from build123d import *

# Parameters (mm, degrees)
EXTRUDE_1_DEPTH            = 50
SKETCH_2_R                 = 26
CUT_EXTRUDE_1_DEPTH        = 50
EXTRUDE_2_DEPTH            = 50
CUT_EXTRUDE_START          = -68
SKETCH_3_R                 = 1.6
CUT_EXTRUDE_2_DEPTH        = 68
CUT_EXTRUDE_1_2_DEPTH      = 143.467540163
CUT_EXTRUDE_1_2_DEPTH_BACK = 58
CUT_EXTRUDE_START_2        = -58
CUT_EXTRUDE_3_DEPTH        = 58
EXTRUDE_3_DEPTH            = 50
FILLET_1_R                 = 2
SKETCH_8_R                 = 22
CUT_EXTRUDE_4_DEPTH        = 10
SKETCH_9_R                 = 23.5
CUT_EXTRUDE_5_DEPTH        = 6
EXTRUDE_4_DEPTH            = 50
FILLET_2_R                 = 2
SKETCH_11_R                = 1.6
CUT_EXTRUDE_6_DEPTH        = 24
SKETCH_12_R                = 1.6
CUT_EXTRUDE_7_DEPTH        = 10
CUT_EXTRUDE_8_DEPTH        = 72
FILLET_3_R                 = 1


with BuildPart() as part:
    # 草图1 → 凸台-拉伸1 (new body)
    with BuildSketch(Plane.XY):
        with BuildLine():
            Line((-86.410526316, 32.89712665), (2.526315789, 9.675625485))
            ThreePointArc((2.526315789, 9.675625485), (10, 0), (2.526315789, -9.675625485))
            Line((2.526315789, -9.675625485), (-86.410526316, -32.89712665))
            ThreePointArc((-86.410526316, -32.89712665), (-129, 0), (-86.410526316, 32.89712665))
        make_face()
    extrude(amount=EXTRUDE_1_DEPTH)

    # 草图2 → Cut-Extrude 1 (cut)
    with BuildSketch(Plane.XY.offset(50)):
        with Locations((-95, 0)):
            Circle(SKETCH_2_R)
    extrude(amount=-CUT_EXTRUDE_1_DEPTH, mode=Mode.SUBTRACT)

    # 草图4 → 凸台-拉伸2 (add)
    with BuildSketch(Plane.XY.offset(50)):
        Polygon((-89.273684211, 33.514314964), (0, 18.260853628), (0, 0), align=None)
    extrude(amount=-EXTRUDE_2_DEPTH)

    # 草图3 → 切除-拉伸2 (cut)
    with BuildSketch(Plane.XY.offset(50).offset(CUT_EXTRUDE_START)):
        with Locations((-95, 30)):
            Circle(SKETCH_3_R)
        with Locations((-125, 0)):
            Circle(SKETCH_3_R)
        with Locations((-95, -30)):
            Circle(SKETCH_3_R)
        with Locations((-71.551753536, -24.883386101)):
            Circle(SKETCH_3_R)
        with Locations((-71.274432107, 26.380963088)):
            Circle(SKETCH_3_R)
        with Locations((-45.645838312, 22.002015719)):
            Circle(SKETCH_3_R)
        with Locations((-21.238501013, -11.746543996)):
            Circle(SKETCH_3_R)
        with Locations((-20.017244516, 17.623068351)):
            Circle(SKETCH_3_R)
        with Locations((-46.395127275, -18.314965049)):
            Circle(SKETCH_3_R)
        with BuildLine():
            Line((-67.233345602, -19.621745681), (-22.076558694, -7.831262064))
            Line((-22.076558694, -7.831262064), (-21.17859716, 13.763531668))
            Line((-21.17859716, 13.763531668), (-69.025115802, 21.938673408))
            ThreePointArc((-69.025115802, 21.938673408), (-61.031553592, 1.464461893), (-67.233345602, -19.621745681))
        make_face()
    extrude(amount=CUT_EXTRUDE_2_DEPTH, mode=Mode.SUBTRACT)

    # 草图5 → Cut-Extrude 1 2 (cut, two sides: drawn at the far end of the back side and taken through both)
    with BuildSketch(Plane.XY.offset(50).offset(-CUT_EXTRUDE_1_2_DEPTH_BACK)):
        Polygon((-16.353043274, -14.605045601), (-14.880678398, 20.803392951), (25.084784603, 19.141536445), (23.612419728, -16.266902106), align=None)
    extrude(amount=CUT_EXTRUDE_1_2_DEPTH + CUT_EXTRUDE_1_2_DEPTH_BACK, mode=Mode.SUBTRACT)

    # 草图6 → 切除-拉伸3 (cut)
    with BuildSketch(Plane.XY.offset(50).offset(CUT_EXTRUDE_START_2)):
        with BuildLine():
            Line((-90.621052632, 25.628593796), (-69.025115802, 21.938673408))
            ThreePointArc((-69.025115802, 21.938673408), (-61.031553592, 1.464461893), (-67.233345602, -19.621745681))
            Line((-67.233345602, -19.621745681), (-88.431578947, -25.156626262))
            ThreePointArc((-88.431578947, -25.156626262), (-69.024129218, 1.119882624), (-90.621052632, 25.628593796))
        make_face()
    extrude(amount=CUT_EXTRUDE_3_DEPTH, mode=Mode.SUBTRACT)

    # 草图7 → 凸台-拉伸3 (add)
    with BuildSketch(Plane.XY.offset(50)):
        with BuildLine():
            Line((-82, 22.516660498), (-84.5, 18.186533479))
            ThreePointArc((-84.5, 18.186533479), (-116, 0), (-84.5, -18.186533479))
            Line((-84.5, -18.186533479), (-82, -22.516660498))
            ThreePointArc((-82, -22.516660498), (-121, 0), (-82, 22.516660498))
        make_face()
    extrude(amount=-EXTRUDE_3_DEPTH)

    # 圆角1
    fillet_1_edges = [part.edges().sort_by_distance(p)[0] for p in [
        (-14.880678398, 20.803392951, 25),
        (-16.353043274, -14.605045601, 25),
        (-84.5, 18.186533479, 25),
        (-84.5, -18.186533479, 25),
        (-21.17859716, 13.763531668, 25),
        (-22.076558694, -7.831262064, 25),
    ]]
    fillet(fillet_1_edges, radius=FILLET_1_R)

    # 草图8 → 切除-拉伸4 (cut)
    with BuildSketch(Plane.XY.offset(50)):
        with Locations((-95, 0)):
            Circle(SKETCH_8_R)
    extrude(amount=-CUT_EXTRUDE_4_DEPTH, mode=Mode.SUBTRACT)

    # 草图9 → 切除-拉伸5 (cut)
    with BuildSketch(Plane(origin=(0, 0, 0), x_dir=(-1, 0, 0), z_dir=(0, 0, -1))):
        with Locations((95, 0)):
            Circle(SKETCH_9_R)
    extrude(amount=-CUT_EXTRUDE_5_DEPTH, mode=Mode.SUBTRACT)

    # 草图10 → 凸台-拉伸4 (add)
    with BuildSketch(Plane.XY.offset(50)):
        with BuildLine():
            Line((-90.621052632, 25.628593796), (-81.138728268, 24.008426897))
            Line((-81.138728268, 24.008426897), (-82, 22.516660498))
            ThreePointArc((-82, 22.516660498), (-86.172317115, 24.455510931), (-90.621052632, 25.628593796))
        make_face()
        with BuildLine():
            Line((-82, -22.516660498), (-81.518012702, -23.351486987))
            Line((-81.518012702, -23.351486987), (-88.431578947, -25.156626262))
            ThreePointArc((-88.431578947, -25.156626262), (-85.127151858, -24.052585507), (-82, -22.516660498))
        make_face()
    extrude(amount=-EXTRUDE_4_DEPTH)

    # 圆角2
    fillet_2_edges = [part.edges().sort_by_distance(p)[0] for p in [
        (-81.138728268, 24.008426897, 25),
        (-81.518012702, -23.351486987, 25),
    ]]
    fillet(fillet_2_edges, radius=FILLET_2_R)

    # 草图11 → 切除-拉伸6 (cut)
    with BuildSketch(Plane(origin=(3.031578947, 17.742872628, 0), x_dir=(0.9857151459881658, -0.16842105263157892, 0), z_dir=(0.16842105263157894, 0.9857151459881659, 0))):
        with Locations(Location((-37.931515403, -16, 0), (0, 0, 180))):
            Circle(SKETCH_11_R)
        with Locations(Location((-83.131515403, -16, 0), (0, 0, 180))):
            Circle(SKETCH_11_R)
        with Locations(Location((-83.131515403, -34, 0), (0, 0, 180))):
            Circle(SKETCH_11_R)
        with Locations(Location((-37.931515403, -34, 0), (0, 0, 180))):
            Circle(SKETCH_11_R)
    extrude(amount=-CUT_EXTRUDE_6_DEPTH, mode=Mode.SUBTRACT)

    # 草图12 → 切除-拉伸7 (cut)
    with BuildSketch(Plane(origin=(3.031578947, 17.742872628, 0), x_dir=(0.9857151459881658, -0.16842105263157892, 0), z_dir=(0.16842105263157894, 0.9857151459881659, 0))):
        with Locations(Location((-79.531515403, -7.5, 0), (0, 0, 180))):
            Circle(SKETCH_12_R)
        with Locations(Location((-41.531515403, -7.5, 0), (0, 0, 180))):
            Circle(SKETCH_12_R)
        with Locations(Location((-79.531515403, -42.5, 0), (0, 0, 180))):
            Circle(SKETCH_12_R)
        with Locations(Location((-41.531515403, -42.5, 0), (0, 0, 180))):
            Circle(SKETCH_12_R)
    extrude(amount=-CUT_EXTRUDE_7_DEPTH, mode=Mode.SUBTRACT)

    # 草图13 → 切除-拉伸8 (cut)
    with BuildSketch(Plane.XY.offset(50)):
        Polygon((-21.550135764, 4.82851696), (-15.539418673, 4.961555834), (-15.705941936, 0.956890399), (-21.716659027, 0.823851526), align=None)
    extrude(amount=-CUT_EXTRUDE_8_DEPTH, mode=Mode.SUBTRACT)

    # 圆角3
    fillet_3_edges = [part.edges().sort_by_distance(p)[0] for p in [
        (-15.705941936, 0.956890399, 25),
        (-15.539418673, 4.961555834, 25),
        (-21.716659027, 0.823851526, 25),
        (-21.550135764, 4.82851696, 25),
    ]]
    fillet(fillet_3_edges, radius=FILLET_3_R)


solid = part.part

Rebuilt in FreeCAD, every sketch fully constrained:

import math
import FreeCAD as App
import Part
import Sketcher

V = App.Vector
Q = App.Units.Quantity


def edges_at(feature, points):
    """Names of the edges that pass closest to the given points."""
    edges = feature.Shape.Edges
    near = lambda p: min(range(len(edges)), key=lambda i: edges[i].distToShape(Part.Vertex(*p))[0])
    return sorted({f"Edge{near(p) + 1}" for p in points})


def add_polygon(sketch, points):
    """Adds a closed chain of lines whose ends are joined by coincident constraints."""
    first, n = sketch.GeometryCount, len(points)
    for a, b in zip(points, points[1:] + points[:1]):
        sketch.addGeometry(Part.LineSegment(App.Vector(*a, 0), App.Vector(*b, 0)), False)
    for i in range(n):
        sketch.addConstraint(Sketcher.Constraint("Coincident", first + i, 2, first + (i + 1) % n, 1))

doc = App.newDocument("Part")
body = doc.addObject("PartDesign::Body", "Body")

sketch1 = body.newObject("Sketcher::SketchObject", "Sketch")
sketch1.AttachmentSupport = (doc.getObject("XY_Plane"), [""])
sketch1.MapMode = "FlatFace"
sketch1.addGeometry([
    Part.LineSegment(V(3, 10, 0), V(-86, 33, 0)),
    Part.ArcOfCircle(Part.Circle(V(-95, 0, 0), V(0, 0, 1), 34), math.radians(75), math.radians(285)),
    Part.LineSegment(V(-86, -33, 0), V(3, -10, 0)),
    Part.ArcOfCircle(Part.Circle(V(0, 0, 0), V(0, 0, 1), 10), math.radians(-75), math.radians(75)),
], False)
sketch1.addConstraint([
    Sketcher.Constraint("Tangent", 0, 2, 1, 1),
    Sketcher.Constraint("Tangent", 1, 2, 2, 1),
    Sketcher.Constraint("Tangent", 2, 2, 3, 1),
    Sketcher.Constraint("Tangent", 3, 2, 0, 1),
    Sketcher.Constraint("Coincident", 3, 3, -1, 1),
    Sketcher.Constraint("PointOnObject", 1, 3, -1),
    Sketcher.Constraint("Radius", 1, 34.0),
    Sketcher.Constraint("Radius", 3, 10.0),
    Sketcher.Constraint("DistanceX", 1, 3, -1, 1, 95.0),
])
pad1 = body.newObject("PartDesign::Pad", "Pad")
pad1.Profile = sketch1
pad1.Length = 50

sketch2 = body.newObject("Sketcher::SketchObject", "Sketch001")
sketch2.AttachmentSupport = (doc.getObject("XY_Plane"), [""])
sketch2.MapMode = "FlatFace"
sketch2.AttachmentOffset = App.Placement(V(0, 0, 50), App.Rotation())
sketch2.addGeometry(Part.Circle(V(-95, 0, 0), V(0, 0, 1), 26), False)
sketch2.addConstraint([
    Sketcher.Constraint("PointOnObject", 0, 3, -1),
    Sketcher.Constraint("Diameter", 0, 52.0),
    Sketcher.Constraint("DistanceX", 0, 3, -1, 1, 95.0),
])
pocket1 = body.newObject("PartDesign::Pocket", "Pocket")
pocket1.Profile = sketch2
pocket1.Length = 50

sketch3 = body.newObject("Sketcher::SketchObject", "Sketch002")
sketch3.AttachmentSupport = (doc.getObject("XY_Plane"), [""])
sketch3.MapMode = "FlatFace"
sketch3.AttachmentOffset = App.Placement(V(0, 0, 50), App.Rotation())
add_polygon(sketch3, [(0, 18), (-89, 34), (0, 0)])
sketch3.addConstraint([
    Sketcher.Constraint("Vertical", 2),
    Sketcher.Constraint("Coincident", 1, 2, -1, 1),
    Sketcher.Constraint("DistanceY", 2, 1, 2, 2, 18.260854),
    Sketcher.Constraint("DistanceY", 2, 2, 0, 2, 15.253461),
    Sketcher.Constraint("Distance", 0, 90.567427),
])
pad2 = body.newObject("PartDesign::Pad", "Pad001")
pad2.Profile = sketch3
pad2.Length = 50
pad2.Reversed = True

sketch4 = body.newObject("Sketcher::SketchObject", "Sketch003")
sketch4.AttachmentSupport = (doc.getObject("XY_Plane"), [""])
sketch4.MapMode = "FlatFace"
sketch4.AttachmentOffset = App.Placement(V(0, 0, -18), App.Rotation())
sketch4.addGeometry([
    Part.Circle(V(-95, 30, 0), V(0, 0, 1), 1.6),
    Part.Circle(V(-125, 0, 0), V(0, 0, 1), 1.6),
    Part.Circle(V(-95, -30, 0), V(0, 0, 1), 1.6),
    Part.Circle(V(-71.6, -24.9, 0), V(0, 0, 1), 1.6),
    Part.Circle(V(-71.3, 26.4, 0), V(0, 0, 1), 1.6),
    Part.Circle(V(-45.6, 22, 0), V(0, 0, 1), 1.6),
    Part.Circle(V(-21.2, -11.7, 0), V(0, 0, 1), 1.6),
    Part.Circle(V(-20, 17.6, 0), V(0, 0, 1), 1.6),
    Part.Circle(V(-46.4, -18.3, 0), V(0, 0, 1), 1.6),
    Part.LineSegment(V(-67.2, -19.6, 0), V(-22.1, -7.8, 0)),
    Part.LineSegment(V(-22.1, -7.8, 0), V(-21.2, 13.8, 0)),
    Part.LineSegment(V(-21.2, 13.8, 0), V(-69, 21.9, 0)),
    Part.ArcOfCircle(Part.Circle(V(-95, 0, 0), V(0, 0, 1), 34), math.radians(-35), math.radians(40)),
], False)
sketch4.addConstraint([
    Sketcher.Constraint("Coincident", 9, 2, 10, 1),
    Sketcher.Constraint("Coincident", 10, 2, 11, 1),
    Sketcher.Constraint("Coincident", 11, 2, 12, 2),
    Sketcher.Constraint("Coincident", 12, 1, 9, 1),
    Sketcher.Constraint("Equal", 0, 1),
    Sketcher.Constraint("Equal", 1, 2),
    Sketcher.Constraint("Equal", 2, 3),
    Sketcher.Constraint("Equal", 3, 4),
    Sketcher.Constraint("Equal", 4, 5),
    Sketcher.Constraint("Equal", 5, 6),
    Sketcher.Constraint("Equal", 6, 7),
    Sketcher.Constraint("Equal", 7, 8),
    Sketcher.Constraint("Symmetric", 0, 3, 2, 3, -1),
    Sketcher.Constraint("PointOnObject", 1, 3, -1),
    Sketcher.Constraint("PointOnObject", 12, 3, -1),
    Sketcher.Constraint("Vertical", 2, 3, 12, 3),
    Sketcher.Constraint("Radius", 12, 34.0),
    Sketcher.Constraint("Diameter", 0, 3.2),
    Sketcher.Constraint("DistanceX", 0, 3, -1, 1, 95.0),
    Sketcher.Constraint("DistanceY", -1, 1, 0, 3, 30.0),
    Sketcher.Constraint("DistanceX", 1, 3, -1, 1, 125.0),
    Sketcher.Constraint("DistanceX", 6, 3, -1, 1, 21.238501),
    Sketcher.Constraint("DistanceY", 3, 3, 5, 3, 46.885402),
    Sketcher.Constraint("DistanceX", 5, 3, -1, 1, 45.645838),
    Sketcher.Constraint("DistanceY", -1, 1, 7, 3, 17.623068),
    Sketcher.Constraint("DistanceX", 9, 2, -1, 1, 22.076559),
    Sketcher.Constraint("DistanceY", -1, 1, 10, 2, 13.763532),
    Sketcher.Constraint("DistanceX", 3, 3, 4, 3, 0.277321),
    Sketcher.Constraint("DistanceY", 3, 3, 4, 3, 51.264349),
    Sketcher.Constraint("DistanceY", 6, 3, 5, 3, 33.74856),
    Sketcher.Constraint("DistanceX", 4, 3, 6, 3, 50.035931),
    Sketcher.Constraint("DistanceX", 3, 3, 7, 3, 51.534509),
    Sketcher.Constraint("DistanceY", 3, 3, 8, 3, 6.568421),
    Sketcher.Constraint("DistanceX", 8, 3, 5, 3, 0.749289),
    Sketcher.Constraint("DistanceY", 6, 3, 9, 2, 3.915282),
    Sketcher.Constraint("DistanceY", 9, 2, 7, 3, 25.45433),
    Sketcher.Constraint("DistanceX", 9, 2, 10, 2, 0.897962),
    Sketcher.Constraint("DistanceY", 11, 2, 4, 3, 4.44229),
    Sketcher.Constraint("DistanceY", 3, 3, 12, 1, 5.26164),
])
pocket2 = body.newObject("PartDesign::Pocket", "Pocket001")
pocket2.Profile = sketch4
pocket2.Length = 68
pocket2.Reversed = True

sketch5 = body.newObject("Sketcher::SketchObject", "Sketch004")
sketch5.AttachmentSupport = (doc.getObject("XY_Plane"), [""])
sketch5.MapMode = "FlatFace"
sketch5.AttachmentOffset = App.Placement(V(0, 0, 50), App.Rotation())
add_polygon(sketch5, [(-15, 21), (-16, -15), (24, -16), (25, 19)])
sketch5.addConstraint([
    Sketcher.Constraint("Perpendicular", 0, 1),
    Sketcher.Constraint("Perpendicular", 1, 2),
    Sketcher.Constraint("Perpendicular", 2, 3),
    Sketcher.Constraint("Distance", 1, 40.0),
    Sketcher.Constraint("DistanceX", 3, 2, 1, 2, 38.493098),
    Sketcher.Constraint("DistanceX", -1, 1, 1, 2, 23.61242),
    Sketcher.Constraint("DistanceY", 1, 2, 2, 2, 35.408439),
    Sketcher.Constraint("DistanceY", 0, 2, -1, 1, 14.605046),
])
pocket3 = body.newObject("PartDesign::Pocket", "Pocket002")
pocket3.Profile = sketch5
pocket3.Type = "ThroughAll"
pocket3.Midplane = True

sketch6 = body.newObject("Sketcher::SketchObject", "Sketch005")
sketch6.AttachmentSupport = (doc.getObject("XY_Plane"), [""])
sketch6.MapMode = "FlatFace"
sketch6.AttachmentOffset = App.Placement(V(0, 0, -8), App.Rotation())
sketch6.addGeometry([
    Part.LineSegment(V(-69, 22, 0), V(-91, 26, 0)),
    Part.ArcOfCircle(Part.Circle(V(-95, 0, 0), V(0, 0, 1), 26), math.radians(-75), math.radians(80)),
    Part.LineSegment(V(-88, -25, 0), V(-67, -20, 0)),
    Part.ArcOfCircle(Part.Circle(V(-95, 0, 0), V(0, 0, 1), 34), math.radians(-35), math.radians(40)),
], False)
sketch6.addConstraint([
    Sketcher.Constraint("Tangent", 0, 2, 1, 2),
    Sketcher.Constraint("Tangent", 1, 1, 2, 1),
    Sketcher.Constraint("Coincident", 2, 2, 3, 1),
    Sketcher.Constraint("Coincident", 3, 2, 0, 1),
    Sketcher.Constraint("Coincident", 3, 3, 1, 3),
    Sketcher.Constraint("PointOnObject", 1, 3, -1),
    Sketcher.Constraint("Radius", 1, 26.0),
    Sketcher.Constraint("Radius", 3, 34.0),
    Sketcher.Constraint("DistanceX", 1, 3, -1, 1, 95.0),
    Sketcher.Constraint("DistanceY", 1, 1, 3, 2, 47.0953),
    Sketcher.Constraint("DistanceX", 1, 1, -1, 1, 88.431579),
])
pocket4 = body.newObject("PartDesign::Pocket", "Pocket003")
pocket4.Profile = sketch6
pocket4.Length = 58
pocket4.Reversed = True

sketch7 = body.newObject("Sketcher::SketchObject", "Sketch006")
sketch7.AttachmentSupport = (doc.getObject("XY_Plane"), [""])
sketch7.MapMode = "FlatFace"
sketch7.AttachmentOffset = App.Placement(V(0, 0, 50), App.Rotation())
sketch7.addGeometry([
    Part.LineSegment(V(-84, 18, 0), V(-82, 23, 0)),
    Part.ArcOfCircle(Part.Circle(V(-95, 0, 0), V(0, 0, 1), 26), math.radians(60), math.radians(300)),
    Part.LineSegment(V(-82, -23, 0), V(-84, -18, 0)),
    Part.ArcOfCircle(Part.Circle(V(-95, 0, 0), V(0, 0, 1), 21), math.radians(60), math.radians(300)),
], False)
sketch7.addConstraint([
    Sketcher.Constraint("Coincident", 0, 2, 1, 1),
    Sketcher.Constraint("Coincident", 1, 2, 2, 1),
    Sketcher.Constraint("Coincident", 2, 2, 3, 2),
    Sketcher.Constraint("Coincident", 3, 1, 0, 1),
    Sketcher.Constraint("Coincident", 3, 3, 1, 3),
    Sketcher.Constraint("Symmetric", 0, 2, 1, 2, -1),
    Sketcher.Constraint("Vertical", 2, 2, 3, 1),
    Sketcher.Constraint("Radius", 1, 26.0),
    Sketcher.Constraint("Radius", 3, 21.0),
    Sketcher.Constraint("Angle", 0, Q("60 deg")),
    Sketcher.Constraint("DistanceX", 1, 3, -1, 1, 95.0),
    Sketcher.Constraint("DistanceX", 0, 2, -1, 1, 82.0),
])
pad3 = body.newObject("PartDesign::Pad", "Pad002")
pad3.Profile = sketch7
pad3.Length = 50
pad3.Reversed = True
doc.recompute()

fillet = body.newObject("PartDesign::Fillet", "Fillet")
fillet.Base = (pad3, edges_at(pad3, [
    (-14.881, 20.803, 25),
    (-16.353, -14.605, 25),
    (-84.5, 18.187, 25),
    (-84.5, -18.187, 25),
    (-21.179, 13.764, 25),
    (-22.077, -7.831, 25),
]))
fillet.Radius = 2

sketch8 = body.newObject("Sketcher::SketchObject", "Sketch007")
sketch8.AttachmentSupport = (doc.getObject("XY_Plane"), [""])
sketch8.MapMode = "FlatFace"
sketch8.AttachmentOffset = App.Placement(V(0, 0, 50), App.Rotation())
sketch8.addGeometry(Part.Circle(V(-95, 0, 0), V(0, 0, 1), 22), False)
sketch8.addConstraint([
    Sketcher.Constraint("PointOnObject", 0, 3, -1),
    Sketcher.Constraint("Diameter", 0, 44.0),
    Sketcher.Constraint("DistanceX", 0, 3, -1, 1, 95.0),
])
pocket5 = body.newObject("PartDesign::Pocket", "Pocket004")
pocket5.Profile = sketch8
pocket5.Length = 10

sketch9 = body.newObject("Sketcher::SketchObject", "Sketch008")
sketch9.AttachmentSupport = (doc.getObject("XY_Plane"), [""])
sketch9.MapMode = "FlatFace"
sketch9.addGeometry(Part.Circle(V(-95, 0, 0), V(0, 0, 1), 24), False)
sketch9.addConstraint([
    Sketcher.Constraint("PointOnObject", 0, 3, -1),
    Sketcher.Constraint("Diameter", 0, 47.0),
    Sketcher.Constraint("DistanceX", 0, 3, -1, 1, 95.0),
])
pocket6 = body.newObject("PartDesign::Pocket", "Pocket005")
pocket6.Profile = sketch9
pocket6.Length = 6
pocket6.Reversed = True

sketch10 = body.newObject("Sketcher::SketchObject", "Sketch009")
sketch10.AttachmentSupport = (doc.getObject("XY_Plane"), [""])
sketch10.MapMode = "FlatFace"
sketch10.AttachmentOffset = App.Placement(V(0, 0, 50), App.Rotation())
sketch10.addGeometry([
    Part.LineSegment(V(-81.1, 24, 0), V(-90.6, 25.6, 0)),
    Part.ArcOfCircle(Part.Circle(V(-95, 0, 0), V(0, 0, 1), 26), math.radians(60), math.radians(80)),
    Part.LineSegment(V(-82, 22.5, 0), V(-81.1, 24, 0)),
    Part.LineSegment(V(-81.5, -23.4, 0), V(-82, -22.5, 0)),
    Part.ArcOfCircle(Part.Circle(V(-95, 0, 0), V(0, 0, 1), 26), math.radians(-75.37), math.radians(-60)),
    Part.LineSegment(V(-88.4, -25.2, 0), V(-81.5, -23.4, 0)),
], False)
sketch10.addConstraint([
    Sketcher.Constraint("Tangent", 0, 2, 1, 2),
    Sketcher.Constraint("Coincident", 1, 1, 2, 1),
    Sketcher.Constraint("Coincident", 2, 2, 0, 1),
    Sketcher.Constraint("Coincident", 3, 2, 4, 2),
    Sketcher.Constraint("Tangent", 4, 1, 5, 1),
    Sketcher.Constraint("Coincident", 5, 2, 3, 1),
    Sketcher.Constraint("Coincident", 4, 3, 1, 3),
    Sketcher.Constraint("Equal", 1, 4),
    Sketcher.Constraint("Symmetric", 1, 1, 3, 2, -1),
    Sketcher.Constraint("Radius", 1, 26.0),
    Sketcher.Constraint("Angle", 2, Q("60 deg")),
    Sketcher.Constraint("Angle", 3, Q("120 deg")),
    Sketcher.Constraint("DistanceX", 1, 3, -1, 1, 95.0),
    Sketcher.Constraint("DistanceX", 1, 1, -1, 1, 82.0),
    Sketcher.Constraint("Distance", 0, 9.619741),
    Sketcher.Constraint("DistanceX", 4, 1, -1, 1, 88.431579),
])
pad4 = body.newObject("PartDesign::Pad", "Pad003")
pad4.Profile = sketch10
pad4.Length = 50
pad4.Reversed = True
doc.recompute()

fillet2 = body.newObject("PartDesign::Fillet", "Fillet001")
fillet2.Base = (pad4, edges_at(pad4, [(-81.139, 24.008, 25), (-81.518, -23.351, 25)]))
fillet2.Radius = 2

sketch11 = body.newObject("Sketcher::SketchObject", "Sketch010")
sketch11.Placement = App.Placement(V(3.031579, 17.742873, 0), App.Rotation(V(0.985715146, -0.168421053, 0), V(0, 0, -1), V(0.168421053, 0.985715146, 0), "ZXY"))
sketch11.addGeometry([
    Part.Circle(V(-37.9, -16, 0), V(0, 0, 1), 1.6),
    Part.Circle(V(-83.1, -16, 0), V(0, 0, 1), 1.6),
    Part.Circle(V(-83.1, -34, 0), V(0, 0, 1), 1.6),
    Part.Circle(V(-37.9, -34, 0), V(0, 0, 1), 1.6),
], False)
sketch11.addConstraint([
    Sketcher.Constraint("Equal", 0, 1),
    Sketcher.Constraint("Equal", 1, 2),
    Sketcher.Constraint("Equal", 2, 3),
    Sketcher.Constraint("Horizontal", 0, 3, 1, 3),
    Sketcher.Constraint("Horizontal", 2, 3, 3, 3),
    Sketcher.Constraint("Vertical", 1, 3, 2, 3),
    Sketcher.Constraint("Vertical", 0, 3, 3, 3),
    Sketcher.Constraint("Diameter", 0, 3.2),
    Sketcher.Constraint("DistanceY", 0, 3, -1, 1, 16.0),
    Sketcher.Constraint("DistanceY", 2, 3, -1, 1, 34.0),
    Sketcher.Constraint("DistanceX", 1, 3, 0, 3, 45.2),
    Sketcher.Constraint("DistanceX", 0, 3, -1, 1, 37.931515),
])
pocket7 = body.newObject("PartDesign::Pocket", "Pocket006")
pocket7.Profile = sketch11
pocket7.Length = 24

sketch12 = body.newObject("Sketcher::SketchObject", "Sketch011")
sketch12.Placement = App.Placement(V(3.031579, 17.742873, 0), App.Rotation(V(0.985715146, -0.168421053, 0), V(0, 0, -1), V(0.168421053, 0.985715146, 0), "ZXY"))
sketch12.addGeometry([
    Part.Circle(V(-79.5, -7.5, 0), V(0, 0, 1), 1.6),
    Part.Circle(V(-41.5, -7.5, 0), V(0, 0, 1), 1.6),
    Part.Circle(V(-79.5, -42.5, 0), V(0, 0, 1), 1.6),
    Part.Circle(V(-41.5, -42.5, 0), V(0, 0, 1), 1.6),
], False)
sketch12.addConstraint([
    Sketcher.Constraint("Equal", 0, 1),
    Sketcher.Constraint("Equal", 1, 2),
    Sketcher.Constraint("Equal", 2, 3),
    Sketcher.Constraint("Horizontal", 0, 3, 1, 3),
    Sketcher.Constraint("Horizontal", 2, 3, 3, 3),
    Sketcher.Constraint("Vertical", 0, 3, 2, 3),
    Sketcher.Constraint("Vertical", 1, 3, 3, 3),
    Sketcher.Constraint("Diameter", 0, 3.2),
    Sketcher.Constraint("DistanceX", 0, 3, 1, 3, 38.0),
    Sketcher.Constraint("DistanceY", 2, 3, 0, 3, 35.0),
    Sketcher.Constraint("DistanceY", 0, 3, -1, 1, 7.5),
    Sketcher.Constraint("DistanceX", 0, 3, -1, 1, 79.531515),
])
pocket8 = body.newObject("PartDesign::Pocket", "Pocket007")
pocket8.Profile = sketch12
pocket8.Length = 10

sketch13 = body.newObject("Sketcher::SketchObject", "Sketch012")
sketch13.AttachmentSupport = (doc.getObject("XY_Plane"), [""])
sketch13.MapMode = "FlatFace"
sketch13.AttachmentOffset = App.Placement(V(0, 0, 50), App.Rotation())
add_polygon(sketch13, [(-15.5, 5), (-21.6, 4.8), (-21.7, 0.8), (-15.7, 1)])
sketch13.addConstraint([
    Sketcher.Constraint("Parallel", 0, 2),
    Sketcher.Constraint("Parallel", 1, 3),
    Sketcher.Constraint("Distance", 0, 6.012189),
    Sketcher.Constraint("DistanceX", 1, 2, -1, 1, 21.716659),
    Sketcher.Constraint("DistanceY", -1, 1, 1, 2, 0.823852),
    Sketcher.Constraint("DistanceX", 2, 2, -1, 1, 15.705942),
    Sketcher.Constraint("DistanceX", 3, 2, -1, 1, 15.539419),
    Sketcher.Constraint("Distance", 1, 4.008126),
])
pocket9 = body.newObject("PartDesign::Pocket", "Pocket008")
pocket9.Profile = sketch13
pocket9.Length = 72
doc.recompute()

fillet3 = body.newObject("PartDesign::Fillet", "Fillet002")
fillet3.Base = (pocket9, edges_at(pocket9, [
    (-15.706, 0.957, 25),
    (-15.539, 4.962, 25),
    (-21.717, 0.824, 25),
    (-21.55, 4.829, 25),
]))
fillet3.Radius = 1

doc.recompute()
